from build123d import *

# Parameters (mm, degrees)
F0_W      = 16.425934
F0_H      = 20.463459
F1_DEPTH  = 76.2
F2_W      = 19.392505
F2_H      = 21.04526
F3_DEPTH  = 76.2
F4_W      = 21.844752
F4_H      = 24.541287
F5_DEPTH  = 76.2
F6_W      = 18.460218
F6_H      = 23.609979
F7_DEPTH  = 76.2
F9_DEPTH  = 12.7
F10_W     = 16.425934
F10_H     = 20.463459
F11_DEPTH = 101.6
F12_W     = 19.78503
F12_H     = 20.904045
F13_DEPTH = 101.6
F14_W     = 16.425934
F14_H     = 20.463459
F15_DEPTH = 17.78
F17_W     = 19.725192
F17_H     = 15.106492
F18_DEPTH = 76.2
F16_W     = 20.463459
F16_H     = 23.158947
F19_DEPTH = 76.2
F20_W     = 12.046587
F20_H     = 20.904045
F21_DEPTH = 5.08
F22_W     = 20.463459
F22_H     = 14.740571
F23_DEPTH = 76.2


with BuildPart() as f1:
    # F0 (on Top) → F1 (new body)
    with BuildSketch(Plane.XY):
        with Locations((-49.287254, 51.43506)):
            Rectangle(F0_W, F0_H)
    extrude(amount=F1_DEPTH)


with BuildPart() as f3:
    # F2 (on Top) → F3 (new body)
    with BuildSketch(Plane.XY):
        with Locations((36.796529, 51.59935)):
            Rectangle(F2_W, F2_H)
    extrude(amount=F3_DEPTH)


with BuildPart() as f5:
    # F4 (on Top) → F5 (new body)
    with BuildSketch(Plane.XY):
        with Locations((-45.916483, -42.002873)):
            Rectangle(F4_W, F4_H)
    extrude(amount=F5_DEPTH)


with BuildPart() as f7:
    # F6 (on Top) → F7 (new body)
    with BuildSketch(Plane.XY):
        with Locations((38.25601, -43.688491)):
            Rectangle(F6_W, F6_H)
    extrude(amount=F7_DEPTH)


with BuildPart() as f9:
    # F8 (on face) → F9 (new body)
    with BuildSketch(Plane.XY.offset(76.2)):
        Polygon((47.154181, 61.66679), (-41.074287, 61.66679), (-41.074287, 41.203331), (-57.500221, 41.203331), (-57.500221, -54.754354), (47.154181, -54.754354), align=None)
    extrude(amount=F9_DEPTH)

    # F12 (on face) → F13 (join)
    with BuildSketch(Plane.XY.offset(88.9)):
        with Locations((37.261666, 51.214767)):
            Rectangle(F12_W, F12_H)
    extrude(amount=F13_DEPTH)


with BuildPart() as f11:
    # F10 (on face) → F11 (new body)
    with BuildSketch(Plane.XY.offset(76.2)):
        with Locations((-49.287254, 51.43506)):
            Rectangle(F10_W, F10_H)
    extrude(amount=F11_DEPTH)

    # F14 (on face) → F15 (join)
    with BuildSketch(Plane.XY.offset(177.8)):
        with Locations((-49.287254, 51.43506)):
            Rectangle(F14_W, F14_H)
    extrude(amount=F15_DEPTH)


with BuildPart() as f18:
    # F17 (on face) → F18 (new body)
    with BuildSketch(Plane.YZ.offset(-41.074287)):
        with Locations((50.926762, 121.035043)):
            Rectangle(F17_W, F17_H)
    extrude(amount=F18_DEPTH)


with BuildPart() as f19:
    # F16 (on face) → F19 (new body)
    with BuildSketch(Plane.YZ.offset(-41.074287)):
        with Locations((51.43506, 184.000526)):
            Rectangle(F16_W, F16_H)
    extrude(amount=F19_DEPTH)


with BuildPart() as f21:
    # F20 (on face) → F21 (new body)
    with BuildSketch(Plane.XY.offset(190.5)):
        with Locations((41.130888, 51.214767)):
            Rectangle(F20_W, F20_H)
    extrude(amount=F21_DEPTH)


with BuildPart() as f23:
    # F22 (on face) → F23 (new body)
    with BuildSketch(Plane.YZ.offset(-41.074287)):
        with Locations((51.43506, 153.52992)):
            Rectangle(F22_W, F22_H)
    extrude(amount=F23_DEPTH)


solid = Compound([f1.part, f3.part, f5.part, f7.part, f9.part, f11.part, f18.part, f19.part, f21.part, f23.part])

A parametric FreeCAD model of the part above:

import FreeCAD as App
import Part
import Sketcher
from FreeCAD import Vector
Q = App.Units.Quantity


def add_polygon(sketch, points):
    """Adds a closed chain of lines whose ends are joined by coincident constraints."""
    first, n = sketch.GeometryCount, len(points)
    for a, b in zip(points, points[1:] + points[:1]):
        sketch.addGeometry(Part.LineSegment(App.Vector(*a, 0), App.Vector(*b, 0)), False)
    for i in range(n):
        sketch.addConstraint(Sketcher.Constraint("Coincident", first + i, 2, first + (i + 1) % n, 1))

doc = App.newDocument("Part")
body = doc.addObject("PartDesign::Body", "Body")

sketch1 = body.newObject("Sketcher::SketchObject", "Sketch")
sketch1.AttachmentSupport = (doc.getObject("XY_Plane"), [""])
sketch1.MapMode = "FlatFace"
add_polygon(sketch1, [(-58, 62), (-58, 41), (-41, 41), (-41, 62)])
sketch1.addConstraint(Sketcher.Constraint("Vertical", 0))
sketch1.addConstraint(Sketcher.Constraint("Horizontal", 1))
sketch1.addConstraint(Sketcher.Constraint("Vertical", 2))
sketch1.addConstraint(Sketcher.Constraint("Horizontal", 3))
sketch1.addConstraint(Sketcher.Constraint("DistanceY", 0, 2, 0, 1, Q("20.463459 mm")))
sketch1.addConstraint(Sketcher.Constraint("DistanceX", 1, 1, 1, 2, Q("16.425934 mm")))
sketch1.addConstraint(Sketcher.Constraint("DistanceX", 0, 2, -1, 1, Q("57.500221 mm")))
sketch1.addConstraint(Sketcher.Constraint("DistanceY", -1, 1, 0, 2, Q("41.20333 mm")))
pad1 = body.newObject("PartDesign::Pad", "Pad")
pad1.Profile = sketch1
pad1.Length = Q("3 in")
body2 = doc.addObject("PartDesign::Body", "Body001")

sketch2 = body2.newObject("Sketcher::SketchObject", "Sketch001")
sketch2.AttachmentSupport = (doc.getObject("XY_Plane001"), [""])
sketch2.MapMode = "FlatFace"
add_polygon(sketch2, [(27, 62), (27, 41), (46, 41), (46, 62)])
sketch2.addConstraint(Sketcher.Constraint("Vertical", 0))
sketch2.addConstraint(Sketcher.Constraint("Horizontal", 1))
sketch2.addConstraint(Sketcher.Constraint("Vertical", 2))
sketch2.addConstraint(Sketcher.Constraint("Horizontal", 3))
sketch2.addConstraint(Sketcher.Constraint("DistanceY", 0, 2, 0, 1, Q("21.04526 mm")))
sketch2.addConstraint(Sketcher.Constraint("DistanceX", 1, 1, 1, 2, Q("19.392505 mm")))
sketch2.addConstraint(Sketcher.Constraint("DistanceY", -1, 1, 0, 2, Q("41.07672 mm")))
sketch2.addConstraint(Sketcher.Constraint("DistanceX", -1, 1, 1, 2, Q("46.492781 mm")))
pad2 = body2.newObject("PartDesign::Pad", "Pad001")
pad2.Profile = sketch2
pad2.Length = Q("3 in")
body3 = doc.addObject("PartDesign::Body", "Body002")

sketch3 = body3.newObject("Sketcher::SketchObject", "Sketch002")
sketch3.AttachmentSupport = (doc.getObject("XY_Plane002"), [""])
sketch3.MapMode = "FlatFace"
add_polygon(sketch3, [(-57, -30), (-57, -54), (-35, -54), (-35, -30)])
sketch3.addConstraint(Sketcher.Constraint("Vertical", 0))
sketch3.addConstraint(Sketcher.Constraint("Horizontal", 1))
sketch3.addConstraint(Sketcher.Constraint("Vertical", 2))
sketch3.addConstraint(Sketcher.Constraint("Horizontal", 3))
sketch3.addConstraint(Sketcher.Constraint("DistanceX", 1, 1, 1, 2, Q("21.844752 mm")))
sketch3.addConstraint(Sketcher.Constraint("DistanceY", 0, 2, 0, 1, Q("24.541287 mm")))
sketch3.addConstraint(Sketcher.Constraint("DistanceX", 0, 2, -1, 1, Q("56.838859 mm")))
sketch3.addConstraint(Sketcher.Constraint("DistanceY", 2, 2, -1, 1, Q("29.732229 mm")))
pad3 = body3.newObject("PartDesign::Pad", "Pad002")
pad3.Profile = sketch3
pad3.Length = Q("3 in")
body4 = doc.addObject("PartDesign::Body", "Body003")

sketch4 = body4.newObject("Sketcher::SketchObject", "Sketch003")
sketch4.AttachmentSupport = (doc.getObject("XY_Plane003"), [""])
sketch4.MapMode = "FlatFace"
add_polygon(sketch4, [(29, -32), (29, -55), (47, -55), (47, -32)])
sketch4.addConstraint(Sketcher.Constraint("Vertical", 0))
sketch4.addConstraint(Sketcher.Constraint("Horizontal", 1))
sketch4.addConstraint(Sketcher.Constraint("Vertical", 2))
sketch4.addConstraint(Sketcher.Constraint("Horizontal", 3))
sketch4.addConstraint(Sketcher.Constraint("DistanceX", 1, 1, 1, 2, Q("18.460218 mm")))
sketch4.addConstraint(Sketcher.Constraint("DistanceY", 0, 2, 0, 1, Q("23.609979 mm")))
sketch4.addConstraint(Sketcher.Constraint("DistanceX", -1, 1, 0, 2, Q("29.025901 mm")))
sketch4.addConstraint(Sketcher.Constraint("DistanceY", 2, 2, -1, 1, Q("31.883502 mm")))
pad4 = body4.newObject("PartDesign::Pad", "Pad003")
pad4.Profile = sketch4
pad4.Length = Q("3 in")
body5 = doc.addObject("PartDesign::Body", "Body004")

sketch5 = body5.newObject("Sketcher::SketchObject", "Sketch004")
sketch5.AttachmentSupport = (doc.getObject("XY_Plane004"), [""])
sketch5.MapMode = "FlatFace"
sketch5.AttachmentOffset = App.Placement(Vector(0, 0, 3 * 25.4), App.Rotation())
add_polygon(sketch5, [(47, 62), (-41, 62), (-41, 41), (-58, 41), (-58, -55), (47, -55)])
sketch5.addConstraint(Sketcher.Constraint("Horizontal", 0))
sketch5.addConstraint(Sketcher.Constraint("Vertical", 1))
sketch5.addConstraint(Sketcher.Constraint("Horizontal", 2))
sketch5.addConstraint(Sketcher.Constraint("Vertical", 3))
sketch5.addConstraint(Sketcher.Constraint("Horizontal", 4))
sketch5.addConstraint(Sketcher.Constraint("Vertical", 5))
sketch5.addConstraint(Sketcher.Constraint("DistanceY", 1, 2, 1, 1, Q("20.463459 mm")))
sketch5.addConstraint(Sketcher.Constraint("DistanceX", 0, 2, 0, 1, Q("88.228468 mm")))
sketch5.addConstraint(Sketcher.Constraint("DistanceX", 2, 2, 2, 1, Q("16.425934 mm")))
sketch5.addConstraint(Sketcher.Constraint("DistanceY", 3, 2, 3, 1, Q("95.957685 mm")))
sketch5.addConstraint(Sketcher.Constraint("DistanceY", -1, 1, 0, 2, Q("61.66679 mm")))
sketch5.addConstraint(Sketcher.Constraint("DistanceX", 2, 2, -1, 1, Q("57.500221 mm")))
pad5 = body5.newObject("PartDesign::Pad", "Pad004")
pad5.Profile = sketch5
pad5.Length = Q("0.5 in")

sketch6 = body5.newObject("Sketcher::SketchObject", "Sketch005")
sketch6.AttachmentSupport = (doc.getObject("XY_Plane004"), [""])
sketch6.MapMode = "FlatFace"
sketch6.AttachmentOffset = App.Placement(Vector(0, 0, 3.5 * 25.4), App.Rotation())
add_polygon(sketch6, [(27, 62), (27, 41), (47, 41), (47, 62)])
sketch6.addConstraint(Sketcher.Constraint("Vertical", 0))
sketch6.addConstraint(Sketcher.Constraint("Horizontal", 1))
sketch6.addConstraint(Sketcher.Constraint("Vertical", 2))
sketch6.addConstraint(Sketcher.Constraint("Horizontal", 3))
sketch6.addConstraint(Sketcher.Constraint("DistanceX", 1, 1, 1, 2, Q("19.78503 mm")))
sketch6.addConstraint(Sketcher.Constraint("DistanceY", 0, 2, 0, 1, Q("20.904045 mm")))
sketch6.addConstraint(Sketcher.Constraint("DistanceX", -1, 1, 0, 2, Q("27.369151 mm")))
sketch6.addConstraint(Sketcher.Constraint("DistanceY", -1, 1, 2, 2, Q("61.66679 mm")))
pad6 = body5.newObject("PartDesign::Pad", "Pad005")
pad6.Profile = sketch6
pad6.Length = Q("4 in")
body6 = doc.addObject("PartDesign::Body", "Body005")

sketch7 = body6.newObject("Sketcher::SketchObject", "Sketch006")
sketch7.AttachmentSupport = (doc.getObject("XY_Plane005"), [""])
sketch7.MapMode = "FlatFace"
sketch7.AttachmentOffset = App.Placement(Vector(0, 0, 3 * 25.4), App.Rotation())
add_polygon(sketch7, [(-58, 62), (-58, 41), (-41, 41), (-41, 62)])
sketch7.addConstraint(Sketcher.Constraint("Vertical", 0))
sketch7.addConstraint(Sketcher.Constraint("Horizontal", 1))
sketch7.addConstraint(Sketcher.Constraint("Vertical", 2))
sketch7.addConstraint(Sketcher.Constraint("Horizontal", 3))
sketch7.addConstraint(Sketcher.Constraint("DistanceY", 0, 2, 0, 1, Q("20.463459 mm")))
sketch7.addConstraint(Sketcher.Constraint("DistanceX", 1, 1, 1, 2, Q("16.425934 mm")))
sketch7.addConstraint(Sketcher.Constraint("DistanceX", 0, 2, -1, 1, Q("57.500221 mm")))
sketch7.addConstraint(Sketcher.Constraint("DistanceY", -1, 1, 0, 2, Q("41.20333 mm")))
pad7 = body6.newObject("PartDesign::Pad", "Pad006")
pad7.Profile = sketch7
pad7.Length = Q("4 in")

sketch8 = body6.newObject("Sketcher::SketchObject", "Sketch007")
sketch8.AttachmentSupport = (doc.getObject("XY_Plane005"), [""])
sketch8.MapMode = "FlatFace"
sketch8.AttachmentOffset = App.Placement(Vector(0, 0, 7 * 25.4), App.Rotation())
add_polygon(sketch8, [(-58, 62), (-58, 41), (-41, 41), (-41, 62)])
sketch8.addConstraint(Sketcher.Constraint("Vertical", 0))
sketch8.addConstraint(Sketcher.Constraint("Horizontal", 1))
sketch8.addConstraint(Sketcher.Constraint("Vertical", 2))
sketch8.addConstraint(Sketcher.Constraint("Horizontal", 3))
sketch8.addConstraint(Sketcher.Constraint("DistanceY", 0, 2, 0, 1, Q("20.463459 mm")))
sketch8.addConstraint(Sketcher.Constraint("DistanceX", 1, 1, 1, 2, Q("16.425934 mm")))
sketch8.addConstraint(Sketcher.Constraint("DistanceX", 0, 2, -1, 1, Q("57.500221 mm")))
sketch8.addConstraint(Sketcher.Constraint("DistanceY", -1, 1, 0, 2, Q("41.20333 mm")))
pad8 = body6.newObject("PartDesign::Pad", "Pad007")
pad8.Profile = sketch8
pad8.Length = Q("0.7 in")
body7 = doc.addObject("PartDesign::Body", "Body006")

sketch9 = body7.newObject("Sketcher::SketchObject", "Sketch008")
sketch9.AttachmentSupport = (doc.getObject("YZ_Plane006"), [""])
sketch9.MapMode = "FlatFace"
sketch9.AttachmentOffset = App.Placement(Vector(0, 0, -41.074287), App.Rotation())
add_polygon(sketch9, [(41, 129), (41, 113), (61, 113), (61, 129)])
sketch9.addConstraint(Sketcher.Constraint("Vertical", 0))
sketch9.addConstraint(Sketcher.Constraint("Horizontal", 1))
sketch9.addConstraint(Sketcher.Constraint("Vertical", 2))
sketch9.addConstraint(Sketcher.Constraint("Horizontal", 3))
sketch9.addConstraint(Sketcher.Constraint("DistanceX", 1, 1, 1, 2, Q("19.725192 mm")))
sketch9.addConstraint(Sketcher.Constraint("DistanceY", 0, 2, 0, 1, Q("15.106492 mm")))
sketch9.addConstraint(Sketcher.Constraint("DistanceY", -1, 1, 2, 2, Q("128.588289 mm")))
sketch9.addConstraint(Sketcher.Constraint("DistanceX", -1, 1, 0, 2, Q("41.064166 mm")))
pad9 = body7.newObject("PartDesign::Pad", "Pad008")
pad9.Profile = sketch9
pad9.Length = Q("3 in")
body8 = doc.addObject("PartDesign::Body", "Body007")

sketch10 = body8.newObject("Sketcher::SketchObject", "Sketch009")
sketch10.AttachmentSupport = (doc.getObject("YZ_Plane007"), [""])
sketch10.MapMode = "FlatFace"
sketch10.AttachmentOffset = App.Placement(Vector(0, 0, -41.074287), App.Rotation())
add_polygon(sketch10, [(41, 196), (41, 172), (62, 172), (62, 196)])
sketch10.addConstraint(Sketcher.Constraint("Vertical", 0))
sketch10.addConstraint(Sketcher.Constraint("Horizontal", 1))
sketch10.addConstraint(Sketcher.Constraint("Vertical", 2))
sketch10.addConstraint(Sketcher.Constraint("Horizontal", 3))
sketch10.addConstraint(Sketcher.Constraint("DistanceY", -1, 1, 2, 2, Q("7.7 in")))
sketch10.addConstraint(Sketcher.Constraint("DistanceX", 1, 1, 1, 2, Q("20.463459 mm")))
sketch10.addConstraint(Sketcher.Constraint("DistanceY", 0, 2, 0, 1, Q("23.158947 mm")))
sketch10.addConstraint(Sketcher.Constraint("DistanceX", -1, 1, 0, 2, Q("41.20333 mm")))
pad10 = body8.newObject("PartDesign::Pad", "Pad009")
pad10.Profile = sketch10
pad10.Length = Q("3 in")
body9 = doc.addObject("PartDesign::Body", "Body008")

sketch11 = body9.newObject("Sketcher::SketchObject", "Sketch010")
sketch11.AttachmentSupport = (doc.getObject("XY_Plane008"), [""])
sketch11.MapMode = "FlatFace"
sketch11.AttachmentOffset = App.Placement(Vector(0, 0, 7.5 * 25.4), App.Rotation())
add_polygon(sketch11, [(35, 62), (35, 41), (47, 41), (47, 62)])
sketch11.addConstraint(Sketcher.Constraint("Vertical", 0))
sketch11.addConstraint(Sketcher.Constraint("Horizontal", 1))
sketch11.addConstraint(Sketcher.Constraint("Vertical", 2))
sketch11.addConstraint(Sketcher.Constraint("Horizontal", 3))
sketch11.addConstraint(Sketcher.Constraint("DistanceX", 1, 1, 1, 2, Q("12.046587 mm")))
sketch11.addConstraint(Sketcher.Constraint("DistanceY", 0, 2, 0, 1, Q("20.904045 mm")))
sketch11.addConstraint(Sketcher.Constraint("DistanceX", -1, 1, 1, 2, Q("47.154181 mm")))
sketch11.addConstraint(Sketcher.Constraint("DistanceY", -1, 1, 2, 2, Q("61.66679 mm")))
pad11 = body9.newObject("PartDesign::Pad", "Pad010")
pad11.Profile = sketch11
pad11.Length = Q("0.2 in")
body10 = doc.addObject("PartDesign::Body", "Body009")

sketch12 = body10.newObject("Sketcher::SketchObject", "Sketch011")
sketch12.AttachmentSupport = (doc.getObject("YZ_Plane009"), [""])
sketch12.MapMode = "FlatFace"
sketch12.AttachmentOffset = App.Placement(Vector(0, 0, -41.074287), App.Rotation())
add_polygon(sketch12, [(41, 161), (41, 146), (62, 146), (62, 161)])
sketch12.addConstraint(Sketcher.Constraint("Vertical", 0))
sketch12.addConstraint(Sketcher.Constraint("Horizontal", 1))
sketch12.addConstraint(Sketcher.Constraint("Vertical", 2))
sketch12.addConstraint(Sketcher.Constraint("Horizontal", 3))
sketch12.addConstraint(Sketcher.Constraint("DistanceX", 1, 1, 1, 2, Q("20.463459 mm")))
sketch12.addConstraint(Sketcher.Constraint("DistanceY", 0, 2, 0, 1, Q("14.740571 mm")))
sketch12.addConstraint(Sketcher.Constraint("DistanceX", -1, 1, 0, 2, Q("41.20333 mm")))
sketch12.addConstraint(Sketcher.Constraint("DistanceY", -1, 1, 0, 2, Q("146.159635 mm")))
pad12 = body10.newObject("PartDesign::Pad", "Pad011")
pad12.Profile = sketch12
pad12.Length = Q("3 in")

doc.recompute()
